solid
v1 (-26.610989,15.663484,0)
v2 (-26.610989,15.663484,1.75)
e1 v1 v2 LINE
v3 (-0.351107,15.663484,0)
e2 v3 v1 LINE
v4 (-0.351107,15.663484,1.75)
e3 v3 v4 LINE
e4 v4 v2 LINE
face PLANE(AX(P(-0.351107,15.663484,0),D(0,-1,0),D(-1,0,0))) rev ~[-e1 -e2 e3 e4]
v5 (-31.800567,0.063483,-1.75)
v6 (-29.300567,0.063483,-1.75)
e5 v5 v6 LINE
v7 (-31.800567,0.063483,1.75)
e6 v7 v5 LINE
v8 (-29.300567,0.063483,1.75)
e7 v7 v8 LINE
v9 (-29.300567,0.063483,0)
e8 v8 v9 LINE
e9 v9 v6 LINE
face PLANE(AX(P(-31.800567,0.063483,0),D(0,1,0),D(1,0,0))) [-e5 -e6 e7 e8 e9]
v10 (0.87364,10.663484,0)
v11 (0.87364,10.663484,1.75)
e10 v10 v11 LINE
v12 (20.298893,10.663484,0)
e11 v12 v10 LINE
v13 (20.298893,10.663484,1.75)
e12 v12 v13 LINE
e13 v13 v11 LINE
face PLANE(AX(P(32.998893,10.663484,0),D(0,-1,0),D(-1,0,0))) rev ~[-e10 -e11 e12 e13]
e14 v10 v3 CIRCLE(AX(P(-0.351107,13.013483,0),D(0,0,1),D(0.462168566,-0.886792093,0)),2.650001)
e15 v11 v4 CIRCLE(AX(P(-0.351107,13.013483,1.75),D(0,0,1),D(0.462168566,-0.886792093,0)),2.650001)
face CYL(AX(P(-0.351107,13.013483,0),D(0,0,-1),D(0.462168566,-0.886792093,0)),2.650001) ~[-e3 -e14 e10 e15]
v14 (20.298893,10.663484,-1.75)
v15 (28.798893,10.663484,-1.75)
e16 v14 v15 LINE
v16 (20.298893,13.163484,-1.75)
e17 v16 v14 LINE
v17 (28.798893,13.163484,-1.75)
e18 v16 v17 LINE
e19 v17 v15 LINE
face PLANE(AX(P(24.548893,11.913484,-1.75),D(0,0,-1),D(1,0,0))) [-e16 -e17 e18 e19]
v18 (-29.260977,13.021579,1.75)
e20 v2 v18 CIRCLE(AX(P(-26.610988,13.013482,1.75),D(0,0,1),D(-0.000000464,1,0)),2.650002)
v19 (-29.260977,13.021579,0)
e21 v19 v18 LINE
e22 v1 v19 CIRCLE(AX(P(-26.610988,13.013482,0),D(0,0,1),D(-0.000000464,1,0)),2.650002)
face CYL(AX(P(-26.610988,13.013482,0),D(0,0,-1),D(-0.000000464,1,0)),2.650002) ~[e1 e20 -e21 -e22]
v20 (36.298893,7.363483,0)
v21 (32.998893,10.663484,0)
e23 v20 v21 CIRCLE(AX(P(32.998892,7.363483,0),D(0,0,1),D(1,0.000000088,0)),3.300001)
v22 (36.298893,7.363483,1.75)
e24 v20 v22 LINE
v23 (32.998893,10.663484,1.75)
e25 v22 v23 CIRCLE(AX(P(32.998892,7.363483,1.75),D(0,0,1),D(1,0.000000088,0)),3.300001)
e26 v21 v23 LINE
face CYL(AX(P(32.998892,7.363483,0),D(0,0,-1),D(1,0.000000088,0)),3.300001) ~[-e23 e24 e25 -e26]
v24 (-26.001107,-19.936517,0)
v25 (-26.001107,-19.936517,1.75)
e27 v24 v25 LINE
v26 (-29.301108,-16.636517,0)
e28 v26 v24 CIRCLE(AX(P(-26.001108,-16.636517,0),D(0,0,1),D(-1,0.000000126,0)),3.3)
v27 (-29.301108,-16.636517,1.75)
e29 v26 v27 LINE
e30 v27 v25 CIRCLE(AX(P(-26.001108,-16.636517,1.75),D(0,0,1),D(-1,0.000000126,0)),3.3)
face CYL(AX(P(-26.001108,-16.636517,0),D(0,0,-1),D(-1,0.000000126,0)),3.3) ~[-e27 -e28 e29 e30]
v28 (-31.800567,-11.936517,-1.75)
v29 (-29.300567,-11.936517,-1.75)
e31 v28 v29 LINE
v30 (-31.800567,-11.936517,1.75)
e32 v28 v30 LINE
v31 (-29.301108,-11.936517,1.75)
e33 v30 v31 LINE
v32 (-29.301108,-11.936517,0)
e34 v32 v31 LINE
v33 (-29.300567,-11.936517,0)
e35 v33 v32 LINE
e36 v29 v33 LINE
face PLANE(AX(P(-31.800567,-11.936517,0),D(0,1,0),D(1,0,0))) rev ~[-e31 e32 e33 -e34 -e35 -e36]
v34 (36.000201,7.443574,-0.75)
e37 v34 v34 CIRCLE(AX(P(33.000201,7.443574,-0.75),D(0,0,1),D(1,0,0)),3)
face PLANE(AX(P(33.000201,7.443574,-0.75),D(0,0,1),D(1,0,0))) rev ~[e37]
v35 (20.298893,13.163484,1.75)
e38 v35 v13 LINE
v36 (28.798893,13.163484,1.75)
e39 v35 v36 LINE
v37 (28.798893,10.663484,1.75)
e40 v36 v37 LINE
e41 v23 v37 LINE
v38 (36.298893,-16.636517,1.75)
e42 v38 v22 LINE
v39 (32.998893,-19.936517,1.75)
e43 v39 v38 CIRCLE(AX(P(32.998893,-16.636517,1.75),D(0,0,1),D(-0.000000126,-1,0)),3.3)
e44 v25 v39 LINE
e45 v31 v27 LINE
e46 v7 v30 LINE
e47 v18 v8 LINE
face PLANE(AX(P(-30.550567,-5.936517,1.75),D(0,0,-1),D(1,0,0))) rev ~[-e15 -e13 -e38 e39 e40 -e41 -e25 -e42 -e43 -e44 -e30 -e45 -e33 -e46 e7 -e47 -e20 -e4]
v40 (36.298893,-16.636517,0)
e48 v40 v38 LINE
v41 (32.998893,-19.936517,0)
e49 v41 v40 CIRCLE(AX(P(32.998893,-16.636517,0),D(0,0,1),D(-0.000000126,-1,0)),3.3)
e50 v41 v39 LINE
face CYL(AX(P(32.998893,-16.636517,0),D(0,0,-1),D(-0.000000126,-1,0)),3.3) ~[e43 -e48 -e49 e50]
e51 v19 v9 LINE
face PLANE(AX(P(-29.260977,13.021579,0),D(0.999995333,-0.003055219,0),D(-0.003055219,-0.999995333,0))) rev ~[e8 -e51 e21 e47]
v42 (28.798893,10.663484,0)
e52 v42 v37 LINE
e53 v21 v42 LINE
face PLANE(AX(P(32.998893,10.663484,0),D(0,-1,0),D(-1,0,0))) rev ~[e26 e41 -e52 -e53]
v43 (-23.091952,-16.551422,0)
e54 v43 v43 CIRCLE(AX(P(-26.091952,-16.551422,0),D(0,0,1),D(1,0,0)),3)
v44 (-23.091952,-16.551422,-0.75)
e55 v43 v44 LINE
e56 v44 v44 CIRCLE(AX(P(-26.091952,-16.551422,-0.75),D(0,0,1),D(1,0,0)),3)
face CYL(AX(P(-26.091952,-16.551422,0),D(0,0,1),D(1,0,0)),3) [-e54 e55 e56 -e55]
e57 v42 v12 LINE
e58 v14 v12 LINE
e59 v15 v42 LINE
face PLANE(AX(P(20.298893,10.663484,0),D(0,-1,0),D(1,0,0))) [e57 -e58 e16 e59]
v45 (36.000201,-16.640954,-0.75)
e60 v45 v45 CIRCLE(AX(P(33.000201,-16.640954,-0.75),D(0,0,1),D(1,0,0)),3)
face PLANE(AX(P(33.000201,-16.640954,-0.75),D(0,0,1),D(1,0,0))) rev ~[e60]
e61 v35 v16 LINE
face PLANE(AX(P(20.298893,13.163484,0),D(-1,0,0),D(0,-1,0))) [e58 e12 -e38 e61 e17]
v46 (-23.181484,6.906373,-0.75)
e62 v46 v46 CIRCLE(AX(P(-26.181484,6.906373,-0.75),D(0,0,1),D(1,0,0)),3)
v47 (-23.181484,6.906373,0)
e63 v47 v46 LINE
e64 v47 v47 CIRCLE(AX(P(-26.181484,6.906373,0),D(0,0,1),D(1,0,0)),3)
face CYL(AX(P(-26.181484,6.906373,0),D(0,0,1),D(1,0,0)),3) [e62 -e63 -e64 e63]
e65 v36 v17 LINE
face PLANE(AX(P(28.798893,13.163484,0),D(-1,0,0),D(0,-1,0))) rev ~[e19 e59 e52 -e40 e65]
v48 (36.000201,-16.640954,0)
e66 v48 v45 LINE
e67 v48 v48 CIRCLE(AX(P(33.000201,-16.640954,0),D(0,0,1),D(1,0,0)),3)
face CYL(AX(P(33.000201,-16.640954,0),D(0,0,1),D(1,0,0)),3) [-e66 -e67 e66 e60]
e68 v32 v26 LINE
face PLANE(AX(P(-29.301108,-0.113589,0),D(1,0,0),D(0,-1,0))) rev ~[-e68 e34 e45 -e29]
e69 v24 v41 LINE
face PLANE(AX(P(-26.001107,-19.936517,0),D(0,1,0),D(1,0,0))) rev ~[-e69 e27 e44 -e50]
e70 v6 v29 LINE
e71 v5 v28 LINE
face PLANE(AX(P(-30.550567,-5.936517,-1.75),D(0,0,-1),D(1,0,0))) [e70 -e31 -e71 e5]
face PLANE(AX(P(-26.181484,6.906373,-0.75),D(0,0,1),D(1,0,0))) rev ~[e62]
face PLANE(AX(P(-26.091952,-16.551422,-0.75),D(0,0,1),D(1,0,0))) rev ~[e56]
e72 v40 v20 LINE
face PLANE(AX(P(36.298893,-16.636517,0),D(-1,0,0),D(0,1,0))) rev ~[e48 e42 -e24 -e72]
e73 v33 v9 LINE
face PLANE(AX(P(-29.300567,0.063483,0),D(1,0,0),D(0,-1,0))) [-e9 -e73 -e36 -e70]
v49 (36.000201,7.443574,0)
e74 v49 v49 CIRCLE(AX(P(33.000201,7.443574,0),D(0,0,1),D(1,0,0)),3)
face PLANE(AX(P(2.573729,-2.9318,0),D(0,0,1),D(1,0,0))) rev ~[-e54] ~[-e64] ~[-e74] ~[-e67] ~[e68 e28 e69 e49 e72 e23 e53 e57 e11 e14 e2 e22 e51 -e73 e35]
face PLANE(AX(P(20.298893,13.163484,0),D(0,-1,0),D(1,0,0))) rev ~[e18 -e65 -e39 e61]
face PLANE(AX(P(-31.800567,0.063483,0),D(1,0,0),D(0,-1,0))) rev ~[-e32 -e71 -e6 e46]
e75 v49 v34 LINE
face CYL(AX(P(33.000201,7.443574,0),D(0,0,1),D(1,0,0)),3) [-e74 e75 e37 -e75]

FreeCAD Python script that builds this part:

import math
import FreeCAD as App
import Part
import Sketcher


def add_polygon(sketch, points):
    """Adds a closed chain of lines whose ends are joined by coincident constraints."""
    first, n = sketch.GeometryCount, len(points)
    for a, b in zip(points, points[1:] + points[:1]):
        sketch.addGeometry(Part.LineSegment(App.Vector(*a, 0), App.Vector(*b, 0)), False)
    for i in range(n):
        sketch.addConstraint(Sketcher.Constraint("Coincident", first + i, 2, first + (i + 1) % n, 1))

doc = App.newDocument("Part")
body = doc.addObject("PartDesign::Body", "Body")

sketch1 = body.newObject("Sketcher::SketchObject", "Sketch")
sketch1.AttachmentSupport = (doc.getObject("XY_Plane"), [""])
sketch1.MapMode = "FlatFace"
sketch1.addGeometry([
    Part.LineSegment(App.Vector(-29.3, -0.1, 0), App.Vector(-29.3, -16.6, 0)),
    Part.ArcOfCircle(Part.Circle(App.Vector(-26, -16.6, 0), App.Vector(0, 0, 1), 3.3), math.radians(180), math.radians(270)),
    Part.LineSegment(App.Vector(-26, -19.9, 0), App.Vector(33, -19.9, 0)),
    Part.ArcOfCircle(Part.Circle(App.Vector(33, -16.6, 0), App.Vector(0, 0, 1), 3.3), math.radians(-90), math.radians(0)),
    Part.LineSegment(App.Vector(36.3, -16.6, 0), App.Vector(36.3, 7.4, 0)),
    Part.ArcOfCircle(Part.Circle(App.Vector(33, 7.4, 0), App.Vector(0, 0, 1), 3.3), math.radians(0), math.radians(90)),
    Part.LineSegment(App.Vector(33, 10.7, 0), App.Vector(0.9, 10.7, 0)),
    Part.ArcOfCircle(Part.Circle(App.Vector(-0.4, 13, 0), App.Vector(0, 0, 1), 2.7), math.radians(-62), math.radians(90)),
    Part.LineSegment(App.Vector(-0.4, 15.7, 0), App.Vector(-26.6, 15.7, 0)),
    Part.ArcOfCircle(Part.Circle(App.Vector(-26.6, 13, 0), App.Vector(0, 0, 1), 2.7), math.radians(90), math.radians(180)),
    Part.LineSegment(App.Vector(-29.3, 13, 0), App.Vector(-29.3, -0.1, 0)),
], False)
sketch1.addConstraint([
    Sketcher.Constraint("Tangent", 0, 2, 1, 1),
    Sketcher.Constraint("Tangent", 1, 2, 2, 1),
    Sketcher.Constraint("Tangent", 2, 2, 3, 1),
    Sketcher.Constraint("Tangent", 3, 2, 4, 1),
    Sketcher.Constraint("Tangent", 4, 2, 5, 1),
    Sketcher.Constraint("Tangent", 5, 2, 6, 1),
    Sketcher.Constraint("Coincident", 6, 2, 7, 1),
    Sketcher.Constraint("Tangent", 7, 2, 8, 1),
    Sketcher.Constraint("Tangent", 8, 2, 9, 1),
    Sketcher.Constraint("Tangent", 9, 2, 10, 1),
    Sketcher.Constraint("Coincident", 10, 2, 0, 1),
    Sketcher.Constraint("Vertical", 0),
    Sketcher.Constraint("Horizontal", 2),
    Sketcher.Constraint("Vertical", 4),
    Sketcher.Constraint("Horizontal", 6),
    Sketcher.Constraint("Horizontal", 8),
    Sketcher.Constraint("Equal", 1, 3),
    Sketcher.Constraint("Equal", 3, 5),
    Sketcher.Constraint("Equal", 7, 9),
    Sketcher.Constraint("Radius", 1, 3.3),
    Sketcher.Constraint("DistanceX", 2, 1, 2, 2, 59.0),
    Sketcher.Constraint("DistanceY", 4, 1, 4, 2, 24.0),
    Sketcher.Constraint("Radius", 7, 2.650001),
    Sketcher.Constraint("DistanceY", 6, 2, 7, 2, 5.0),
    Sketcher.Constraint("DistanceX", 7, 3, 5, 3, 33.349999),
    Sketcher.Constraint("DistanceY", 0, 2, 0, 1, 16.522928),
    Sketcher.Constraint("Distance", 10, 13.135229),
    Sketcher.Constraint("DistanceX", 1, 3, -1, 1, 26.001108),
    Sketcher.Constraint("DistanceY", -1, 1, 9, 2, 13.021579),
])
pad1 = body.newObject("PartDesign::Pad", "Pad")
pad1.Profile = sketch1
pad1.Length = 1.75

sketch2 = body.newObject("Sketcher::SketchObject", "Sketch001")
sketch2.AttachmentSupport = (doc.getObject("XY_Plane"), [""])
sketch2.MapMode = "FlatFace"
add_polygon(sketch2, [(20.3, 10.7), (20.3, 13.2), (28.8, 13.2), (28.8, 10.7)])
add_polygon(sketch2, [(-31.8, -11.9), (-31.8, 0.1), (-29.3, 0.1), (-29.3, -11.9)])
sketch2.addConstraint([
    Sketcher.Constraint("Vertical", 0),
    Sketcher.Constraint("Horizontal", 1),
    Sketcher.Constraint("Vertical", 2),
    Sketcher.Constraint("Horizontal", 3),
    Sketcher.Constraint("Vertical", 4),
    Sketcher.Constraint("Horizontal", 5),
    Sketcher.Constraint("Vertical", 6),
    Sketcher.Constraint("Horizontal", 7),
    Sketcher.Constraint("Equal", 7, 0),
    Sketcher.Constraint("DistanceY", 4, 1, 4, 2, 12.0),
    Sketcher.Constraint("DistanceX", 1, 1, 1, 2, 8.5),
    Sketcher.Constraint("DistanceX", 5, 1, 5, 2, 2.5),
    Sketcher.Constraint("DistanceY", 4, 2, 3, 2, 10.600001),
    Sketcher.Constraint("DistanceX", 4, 2, 3, 2, 52.09946),
    Sketcher.Constraint("DistanceX", -1, 1, 0, 2, 20.298893),
    Sketcher.Constraint("DistanceY", -1, 1, 0, 2, 13.163484),
])
pad2 = body.newObject("PartDesign::Pad", "Pad001")
pad2.Profile = sketch2
pad2.Length = 3.5
pad2.Midplane = True

sketch3 = body.newObject("Sketcher::SketchObject", "Sketch002")
sketch3.AttachmentSupport = (doc.getObject("XY_Plane"), [""])
sketch3.MapMode = "FlatFace"
sketch3.addGeometry([
    Part.Circle(App.Vector(33, -16.6, 0), App.Vector(0, 0, 1), 3),
    Part.Circle(App.Vector(33, 7.4, 0), App.Vector(0, 0, 1), 3),
    Part.Circle(App.Vector(-26.1, -16.6, 0), App.Vector(0, 0, 1), 3),
    Part.Circle(App.Vector(-26.2, 6.9, 0), App.Vector(0, 0, 1), 3),
], False)
sketch3.addConstraint([
    Sketcher.Constraint("Equal", 0, 1),
    Sketcher.Constraint("Equal", 1, 2),
    Sketcher.Constraint("Equal", 2, 3),
    Sketcher.Constraint("Vertical", 0, 3, 1, 3),
    Sketcher.Constraint("Diameter", 0, 6.0),
    Sketcher.Constraint("DistanceX", -1, 1, 0, 3, 33.000201),
    Sketcher.Constraint("DistanceY", 3, 3, 1, 3, 0.537201),
    Sketcher.Constraint("DistanceX", 2, 3, -1, 1, 26.091952),
    Sketcher.Constraint("DistanceY", 2, 3, -1, 1, 16.551422),
    Sketcher.Constraint("DistanceY", 0, 3, -1, 1, 16.640954),
    Sketcher.Constraint("DistanceY", -1, 1, 1, 3, 7.443574),
    Sketcher.Constraint("DistanceX", 3, 3, -1, 1, 26.181484),
])
pad3 = body.newObject("PartDesign::Pad", "Pad002")
pad3.Profile = sketch3
pad3.Length = 0.75
pad3.Reversed = True

doc.recompute()
